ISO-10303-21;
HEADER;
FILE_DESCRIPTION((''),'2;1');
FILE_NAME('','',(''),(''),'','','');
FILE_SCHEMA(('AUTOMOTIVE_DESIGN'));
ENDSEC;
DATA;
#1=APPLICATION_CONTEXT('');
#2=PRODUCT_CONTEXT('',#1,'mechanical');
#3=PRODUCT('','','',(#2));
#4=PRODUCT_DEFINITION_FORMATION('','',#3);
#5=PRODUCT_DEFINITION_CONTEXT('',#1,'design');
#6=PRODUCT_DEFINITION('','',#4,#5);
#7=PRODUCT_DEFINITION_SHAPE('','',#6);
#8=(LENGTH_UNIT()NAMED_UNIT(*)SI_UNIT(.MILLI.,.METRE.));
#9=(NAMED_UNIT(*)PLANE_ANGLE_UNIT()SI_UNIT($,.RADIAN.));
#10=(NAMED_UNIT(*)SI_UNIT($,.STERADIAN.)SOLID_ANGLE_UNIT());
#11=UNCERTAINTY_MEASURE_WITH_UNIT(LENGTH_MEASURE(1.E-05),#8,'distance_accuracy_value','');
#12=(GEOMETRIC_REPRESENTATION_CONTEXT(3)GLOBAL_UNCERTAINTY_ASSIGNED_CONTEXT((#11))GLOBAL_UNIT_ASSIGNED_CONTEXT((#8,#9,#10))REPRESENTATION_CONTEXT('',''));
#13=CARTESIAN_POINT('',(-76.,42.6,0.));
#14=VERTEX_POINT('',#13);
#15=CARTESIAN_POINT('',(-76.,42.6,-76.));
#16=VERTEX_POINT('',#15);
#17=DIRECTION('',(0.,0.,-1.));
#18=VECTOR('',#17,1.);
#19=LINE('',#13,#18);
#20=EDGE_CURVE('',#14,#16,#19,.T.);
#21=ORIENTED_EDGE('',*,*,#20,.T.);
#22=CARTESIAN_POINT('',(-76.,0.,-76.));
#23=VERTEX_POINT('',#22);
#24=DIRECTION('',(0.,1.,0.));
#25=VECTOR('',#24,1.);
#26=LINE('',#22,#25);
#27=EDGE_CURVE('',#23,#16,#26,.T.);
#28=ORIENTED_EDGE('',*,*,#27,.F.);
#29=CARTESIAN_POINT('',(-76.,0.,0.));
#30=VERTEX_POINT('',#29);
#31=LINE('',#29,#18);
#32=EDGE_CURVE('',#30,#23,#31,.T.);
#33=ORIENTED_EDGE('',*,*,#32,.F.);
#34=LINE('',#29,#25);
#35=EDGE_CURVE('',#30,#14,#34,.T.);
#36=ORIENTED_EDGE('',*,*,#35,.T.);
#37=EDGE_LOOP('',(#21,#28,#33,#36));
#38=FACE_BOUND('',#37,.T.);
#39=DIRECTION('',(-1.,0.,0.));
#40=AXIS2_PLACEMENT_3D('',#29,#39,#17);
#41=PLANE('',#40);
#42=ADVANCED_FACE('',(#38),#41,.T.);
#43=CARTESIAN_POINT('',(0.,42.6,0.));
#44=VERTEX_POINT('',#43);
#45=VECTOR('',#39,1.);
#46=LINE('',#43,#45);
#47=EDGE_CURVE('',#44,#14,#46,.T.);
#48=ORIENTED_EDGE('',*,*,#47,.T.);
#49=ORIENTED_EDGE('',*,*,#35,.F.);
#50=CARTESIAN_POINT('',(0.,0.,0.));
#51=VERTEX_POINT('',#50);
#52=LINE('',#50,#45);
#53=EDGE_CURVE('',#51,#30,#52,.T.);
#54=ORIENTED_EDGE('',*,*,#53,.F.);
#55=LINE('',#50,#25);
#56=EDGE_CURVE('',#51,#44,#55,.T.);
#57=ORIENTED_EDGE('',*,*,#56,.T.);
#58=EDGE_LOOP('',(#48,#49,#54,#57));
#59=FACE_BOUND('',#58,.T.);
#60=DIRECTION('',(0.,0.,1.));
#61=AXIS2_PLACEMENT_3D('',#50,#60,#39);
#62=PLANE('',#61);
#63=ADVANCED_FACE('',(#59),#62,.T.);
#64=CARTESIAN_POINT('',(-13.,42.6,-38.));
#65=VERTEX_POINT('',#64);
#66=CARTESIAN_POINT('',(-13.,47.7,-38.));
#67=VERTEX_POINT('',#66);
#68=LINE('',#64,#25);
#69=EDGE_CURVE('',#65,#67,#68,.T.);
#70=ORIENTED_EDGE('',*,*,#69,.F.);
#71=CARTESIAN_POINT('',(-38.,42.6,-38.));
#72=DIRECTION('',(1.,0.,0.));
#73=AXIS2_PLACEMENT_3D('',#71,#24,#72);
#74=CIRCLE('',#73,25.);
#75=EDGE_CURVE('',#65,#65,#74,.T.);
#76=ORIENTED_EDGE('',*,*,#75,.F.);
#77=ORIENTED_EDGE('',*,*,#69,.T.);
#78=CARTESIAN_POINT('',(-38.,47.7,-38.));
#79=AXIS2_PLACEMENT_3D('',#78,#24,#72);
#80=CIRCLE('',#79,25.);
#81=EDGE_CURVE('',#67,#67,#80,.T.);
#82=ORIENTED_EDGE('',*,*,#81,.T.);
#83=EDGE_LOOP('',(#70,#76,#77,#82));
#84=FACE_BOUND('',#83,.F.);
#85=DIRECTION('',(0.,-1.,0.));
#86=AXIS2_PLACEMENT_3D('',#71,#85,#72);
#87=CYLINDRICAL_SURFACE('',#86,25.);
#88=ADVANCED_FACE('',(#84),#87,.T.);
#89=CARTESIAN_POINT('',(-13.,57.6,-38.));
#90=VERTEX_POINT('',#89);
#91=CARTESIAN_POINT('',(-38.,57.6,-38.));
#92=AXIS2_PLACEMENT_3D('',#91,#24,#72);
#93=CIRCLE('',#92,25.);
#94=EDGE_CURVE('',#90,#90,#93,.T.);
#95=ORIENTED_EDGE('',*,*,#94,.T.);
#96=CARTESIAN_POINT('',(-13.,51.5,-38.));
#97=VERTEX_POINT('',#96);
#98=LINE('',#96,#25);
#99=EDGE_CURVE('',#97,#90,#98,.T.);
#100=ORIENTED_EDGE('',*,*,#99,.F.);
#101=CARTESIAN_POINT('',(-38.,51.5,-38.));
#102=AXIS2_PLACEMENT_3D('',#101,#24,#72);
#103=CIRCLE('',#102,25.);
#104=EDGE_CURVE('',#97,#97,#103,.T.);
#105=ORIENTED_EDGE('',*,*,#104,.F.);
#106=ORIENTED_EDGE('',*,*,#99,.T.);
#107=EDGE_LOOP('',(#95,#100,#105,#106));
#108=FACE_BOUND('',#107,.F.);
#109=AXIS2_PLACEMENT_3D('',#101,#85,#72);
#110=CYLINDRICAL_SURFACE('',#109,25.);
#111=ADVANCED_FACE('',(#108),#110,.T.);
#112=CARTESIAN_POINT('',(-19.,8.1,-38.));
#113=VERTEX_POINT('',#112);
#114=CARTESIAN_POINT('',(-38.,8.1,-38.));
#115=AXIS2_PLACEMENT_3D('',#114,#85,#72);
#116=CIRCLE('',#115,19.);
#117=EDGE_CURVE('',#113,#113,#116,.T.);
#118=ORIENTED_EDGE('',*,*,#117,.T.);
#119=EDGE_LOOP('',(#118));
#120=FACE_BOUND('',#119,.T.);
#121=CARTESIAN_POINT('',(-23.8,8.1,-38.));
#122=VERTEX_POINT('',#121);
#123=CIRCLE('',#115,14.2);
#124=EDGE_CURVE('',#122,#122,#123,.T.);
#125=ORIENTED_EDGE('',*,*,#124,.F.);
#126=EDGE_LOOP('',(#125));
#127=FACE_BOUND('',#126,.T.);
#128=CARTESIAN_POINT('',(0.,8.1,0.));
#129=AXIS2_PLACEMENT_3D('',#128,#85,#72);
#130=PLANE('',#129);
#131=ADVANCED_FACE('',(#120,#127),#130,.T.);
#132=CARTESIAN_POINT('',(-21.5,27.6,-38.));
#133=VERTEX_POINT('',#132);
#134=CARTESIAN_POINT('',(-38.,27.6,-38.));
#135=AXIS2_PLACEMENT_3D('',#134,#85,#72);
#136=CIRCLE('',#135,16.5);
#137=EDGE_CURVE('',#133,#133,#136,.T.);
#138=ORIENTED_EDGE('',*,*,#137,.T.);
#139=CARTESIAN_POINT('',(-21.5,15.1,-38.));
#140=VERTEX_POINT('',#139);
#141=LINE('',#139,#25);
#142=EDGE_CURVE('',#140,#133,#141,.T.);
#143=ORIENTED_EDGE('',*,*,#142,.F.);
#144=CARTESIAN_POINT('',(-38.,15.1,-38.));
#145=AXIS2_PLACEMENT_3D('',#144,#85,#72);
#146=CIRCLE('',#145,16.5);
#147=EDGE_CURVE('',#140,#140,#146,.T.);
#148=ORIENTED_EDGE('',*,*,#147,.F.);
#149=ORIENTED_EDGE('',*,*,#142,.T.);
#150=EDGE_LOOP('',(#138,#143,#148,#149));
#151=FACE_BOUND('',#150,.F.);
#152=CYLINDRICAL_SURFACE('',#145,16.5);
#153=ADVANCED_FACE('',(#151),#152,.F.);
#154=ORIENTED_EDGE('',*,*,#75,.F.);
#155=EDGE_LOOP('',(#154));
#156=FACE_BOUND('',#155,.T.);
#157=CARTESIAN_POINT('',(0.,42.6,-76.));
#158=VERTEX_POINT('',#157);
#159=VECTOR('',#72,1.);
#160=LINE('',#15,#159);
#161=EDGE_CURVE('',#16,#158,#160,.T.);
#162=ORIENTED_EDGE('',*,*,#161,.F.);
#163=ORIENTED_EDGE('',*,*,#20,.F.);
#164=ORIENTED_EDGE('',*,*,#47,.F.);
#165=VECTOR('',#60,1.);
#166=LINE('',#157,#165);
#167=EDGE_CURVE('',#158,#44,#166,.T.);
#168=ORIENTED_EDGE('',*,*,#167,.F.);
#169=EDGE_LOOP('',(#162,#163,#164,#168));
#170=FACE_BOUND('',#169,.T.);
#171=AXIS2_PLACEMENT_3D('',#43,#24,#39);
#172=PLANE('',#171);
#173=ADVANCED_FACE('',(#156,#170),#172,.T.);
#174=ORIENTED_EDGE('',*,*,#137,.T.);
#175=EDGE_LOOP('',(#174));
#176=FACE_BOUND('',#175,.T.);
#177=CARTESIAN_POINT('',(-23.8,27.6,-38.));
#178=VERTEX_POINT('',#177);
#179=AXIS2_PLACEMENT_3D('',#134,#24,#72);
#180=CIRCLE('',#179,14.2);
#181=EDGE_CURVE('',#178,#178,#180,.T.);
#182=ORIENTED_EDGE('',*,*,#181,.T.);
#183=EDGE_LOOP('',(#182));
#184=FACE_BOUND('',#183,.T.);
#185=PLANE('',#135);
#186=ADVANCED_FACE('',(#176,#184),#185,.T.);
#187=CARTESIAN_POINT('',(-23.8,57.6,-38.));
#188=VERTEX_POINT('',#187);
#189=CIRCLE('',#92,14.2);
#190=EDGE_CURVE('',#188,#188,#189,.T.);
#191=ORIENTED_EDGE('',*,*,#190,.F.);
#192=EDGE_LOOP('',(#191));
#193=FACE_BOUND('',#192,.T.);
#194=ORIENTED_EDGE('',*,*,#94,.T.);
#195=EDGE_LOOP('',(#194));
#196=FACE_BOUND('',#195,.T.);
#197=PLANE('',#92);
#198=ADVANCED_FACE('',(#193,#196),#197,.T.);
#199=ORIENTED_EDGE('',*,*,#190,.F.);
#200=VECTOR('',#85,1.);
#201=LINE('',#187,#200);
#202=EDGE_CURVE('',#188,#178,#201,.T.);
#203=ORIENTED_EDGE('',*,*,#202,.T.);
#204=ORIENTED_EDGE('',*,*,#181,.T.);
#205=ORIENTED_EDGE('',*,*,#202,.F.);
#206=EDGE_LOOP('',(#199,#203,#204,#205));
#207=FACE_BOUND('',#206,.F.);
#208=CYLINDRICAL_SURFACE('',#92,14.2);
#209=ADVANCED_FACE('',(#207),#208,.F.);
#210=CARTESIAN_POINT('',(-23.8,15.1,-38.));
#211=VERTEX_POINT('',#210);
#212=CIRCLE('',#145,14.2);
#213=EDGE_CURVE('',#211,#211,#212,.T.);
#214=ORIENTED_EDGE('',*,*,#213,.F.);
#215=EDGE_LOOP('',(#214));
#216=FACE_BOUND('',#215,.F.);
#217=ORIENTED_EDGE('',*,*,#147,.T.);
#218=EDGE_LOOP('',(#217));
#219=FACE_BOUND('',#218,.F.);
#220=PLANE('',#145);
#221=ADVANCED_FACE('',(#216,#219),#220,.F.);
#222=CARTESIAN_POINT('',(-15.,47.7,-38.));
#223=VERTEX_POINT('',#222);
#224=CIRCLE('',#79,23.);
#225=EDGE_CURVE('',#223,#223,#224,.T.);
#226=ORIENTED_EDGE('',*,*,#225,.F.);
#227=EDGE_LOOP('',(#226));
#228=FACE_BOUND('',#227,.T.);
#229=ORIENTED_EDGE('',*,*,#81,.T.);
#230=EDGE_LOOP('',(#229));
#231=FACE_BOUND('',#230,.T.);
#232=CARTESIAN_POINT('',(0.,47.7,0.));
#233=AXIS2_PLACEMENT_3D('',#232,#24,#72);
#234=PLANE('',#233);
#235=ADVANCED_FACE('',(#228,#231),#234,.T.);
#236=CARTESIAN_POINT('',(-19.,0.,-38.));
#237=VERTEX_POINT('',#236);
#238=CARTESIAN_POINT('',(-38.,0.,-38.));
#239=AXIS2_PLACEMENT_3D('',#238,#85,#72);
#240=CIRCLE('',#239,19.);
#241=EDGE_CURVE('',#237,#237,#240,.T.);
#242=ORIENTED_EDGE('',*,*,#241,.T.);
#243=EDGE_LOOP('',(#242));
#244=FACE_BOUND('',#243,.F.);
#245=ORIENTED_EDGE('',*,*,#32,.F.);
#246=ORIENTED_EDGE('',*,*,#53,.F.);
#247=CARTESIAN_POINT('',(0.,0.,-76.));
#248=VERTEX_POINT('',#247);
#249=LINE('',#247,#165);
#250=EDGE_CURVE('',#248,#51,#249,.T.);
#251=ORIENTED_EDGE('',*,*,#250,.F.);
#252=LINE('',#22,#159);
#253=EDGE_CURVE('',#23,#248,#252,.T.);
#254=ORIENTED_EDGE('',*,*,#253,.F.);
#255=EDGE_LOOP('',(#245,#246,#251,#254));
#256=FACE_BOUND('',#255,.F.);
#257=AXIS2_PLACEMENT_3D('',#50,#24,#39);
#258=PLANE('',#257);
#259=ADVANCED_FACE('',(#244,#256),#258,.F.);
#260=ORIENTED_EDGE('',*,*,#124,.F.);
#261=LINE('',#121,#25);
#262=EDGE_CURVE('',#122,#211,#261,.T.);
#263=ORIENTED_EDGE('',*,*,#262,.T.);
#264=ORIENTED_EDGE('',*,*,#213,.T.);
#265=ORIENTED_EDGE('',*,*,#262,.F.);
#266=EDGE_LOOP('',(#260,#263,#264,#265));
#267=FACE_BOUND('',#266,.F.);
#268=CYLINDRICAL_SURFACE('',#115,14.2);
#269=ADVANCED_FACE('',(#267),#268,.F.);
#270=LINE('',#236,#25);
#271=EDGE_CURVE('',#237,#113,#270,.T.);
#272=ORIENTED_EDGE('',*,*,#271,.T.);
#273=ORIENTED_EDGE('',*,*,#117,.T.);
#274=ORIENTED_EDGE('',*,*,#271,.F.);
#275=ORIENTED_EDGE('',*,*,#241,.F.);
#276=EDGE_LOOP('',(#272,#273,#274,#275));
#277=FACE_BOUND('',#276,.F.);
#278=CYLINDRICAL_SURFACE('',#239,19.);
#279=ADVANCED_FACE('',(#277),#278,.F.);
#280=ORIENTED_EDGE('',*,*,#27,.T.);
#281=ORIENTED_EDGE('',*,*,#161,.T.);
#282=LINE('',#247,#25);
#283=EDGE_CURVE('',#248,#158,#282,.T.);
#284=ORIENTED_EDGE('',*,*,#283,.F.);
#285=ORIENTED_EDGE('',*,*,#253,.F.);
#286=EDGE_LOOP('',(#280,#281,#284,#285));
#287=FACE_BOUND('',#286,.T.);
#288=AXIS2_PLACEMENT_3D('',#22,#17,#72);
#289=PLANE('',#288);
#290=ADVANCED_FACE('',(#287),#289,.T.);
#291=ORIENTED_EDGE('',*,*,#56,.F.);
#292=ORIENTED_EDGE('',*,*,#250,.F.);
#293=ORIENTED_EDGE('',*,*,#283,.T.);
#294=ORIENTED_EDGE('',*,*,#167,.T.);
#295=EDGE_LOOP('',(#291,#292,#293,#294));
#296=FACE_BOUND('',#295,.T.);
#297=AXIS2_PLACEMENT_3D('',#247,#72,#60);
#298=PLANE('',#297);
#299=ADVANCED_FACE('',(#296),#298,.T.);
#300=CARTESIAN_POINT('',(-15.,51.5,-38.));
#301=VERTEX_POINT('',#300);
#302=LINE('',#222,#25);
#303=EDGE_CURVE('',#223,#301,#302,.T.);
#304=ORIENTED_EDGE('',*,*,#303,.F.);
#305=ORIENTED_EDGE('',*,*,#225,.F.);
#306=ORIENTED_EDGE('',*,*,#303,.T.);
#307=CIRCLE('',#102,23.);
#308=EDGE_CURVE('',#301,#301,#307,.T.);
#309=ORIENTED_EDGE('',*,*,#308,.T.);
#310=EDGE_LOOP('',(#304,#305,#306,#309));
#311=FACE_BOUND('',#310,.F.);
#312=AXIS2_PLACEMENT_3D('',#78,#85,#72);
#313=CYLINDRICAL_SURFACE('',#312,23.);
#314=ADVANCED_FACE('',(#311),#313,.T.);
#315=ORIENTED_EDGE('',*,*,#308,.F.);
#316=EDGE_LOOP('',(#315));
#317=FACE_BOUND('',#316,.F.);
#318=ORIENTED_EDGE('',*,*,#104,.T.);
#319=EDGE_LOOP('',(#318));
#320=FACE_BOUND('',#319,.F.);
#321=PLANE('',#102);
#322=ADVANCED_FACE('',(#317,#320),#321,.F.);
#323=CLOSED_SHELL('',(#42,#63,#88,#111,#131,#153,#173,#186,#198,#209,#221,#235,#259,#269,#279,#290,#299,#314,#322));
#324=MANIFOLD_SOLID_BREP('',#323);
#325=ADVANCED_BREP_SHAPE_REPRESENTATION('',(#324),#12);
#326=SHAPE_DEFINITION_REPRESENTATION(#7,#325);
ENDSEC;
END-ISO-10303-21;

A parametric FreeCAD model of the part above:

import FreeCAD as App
import Part
import Sketcher
from FreeCAD import Vector


def add_polygon(sketch, points):
    """Adds a closed chain of lines whose ends are joined by coincident constraints."""
    first, n = sketch.GeometryCount, len(points)
    for a, b in zip(points, points[1:] + points[:1]):
        sketch.addGeometry(Part.LineSegment(App.Vector(*a, 0), App.Vector(*b, 0)), False)
    for i in range(n):
        sketch.addConstraint(Sketcher.Constraint("Coincident", first + i, 2, first + (i + 1) % n, 1))

doc = App.newDocument("Part")
body = doc.addObject("PartDesign::Body", "Body")

# Sketch on XZ plane
sketch1 = body.newObject("Sketcher::SketchObject", "Sketch")
sketch1.AttachmentSupport = (doc.getObject("XZ_Plane"), [""])
sketch1.MapMode = "FlatFace"
add_polygon(sketch1, [(-76, 0), (0, 0), (0, -76), (-76, -76)])  # lines 0-3
sketch1.addConstraint(Sketcher.Constraint("Horizontal", 0))
sketch1.addConstraint(Sketcher.Constraint("Vertical", 1))
sketch1.addConstraint(Sketcher.Constraint("Horizontal", 2))
sketch1.addConstraint(Sketcher.Constraint("Vertical", 3))
sketch1.addConstraint(Sketcher.Constraint("Coincident", 0, 2, -1, 1))
sketch1.addConstraint(Sketcher.Constraint("Equal", 2, 1))
sketch1.addConstraint(Sketcher.Constraint("DistanceX", 0, 1, 0, 2, 76.0))
pad1 = body.newObject("PartDesign::Pad", "Pad")
pad1.Profile = sketch1
pad1.Length = 42.6
pad1.Reversed = True

# Sketch on XZ plane
sketch2 = body.newObject("Sketcher::SketchObject", "Sketch001")
sketch2.AttachmentSupport = (doc.getObject("XZ_Plane"), [""])
sketch2.MapMode = "FlatFace"
sketch2.AttachmentOffset = App.Placement(Vector(0, 0, -42.6), App.Rotation())
sketch2.addGeometry(Part.Circle(Vector(-38, -38, 0), Vector(0, 0, 1), 25), False)
sketch2.addConstraint(Sketcher.Constraint("Diameter", 0, 50.0))
sketch2.addConstraint(Sketcher.Constraint("DistanceX", 0, 3, -1, 1, 38.0))
sketch2.addConstraint(Sketcher.Constraint("DistanceY", 0, 3, -1, 1, 38.0))
pad2 = body.newObject("PartDesign::Pad", "Pad001")
pad2.Profile = sketch2
pad2.Length = 5.1
pad2.Reversed = True

# Sketch on XZ plane
sketch3 = body.newObject("Sketcher::SketchObject", "Sketch002")
sketch3.AttachmentSupport = (doc.getObject("XZ_Plane"), [""])
sketch3.MapMode = "FlatFace"
sketch3.AttachmentOffset = App.Placement(Vector(0, 0, -47.7), App.Rotation())
sketch3.addGeometry(Part.Circle(Vector(-38, -38, 0), Vector(0, 0, 1), 23), False)
sketch3.addConstraint(Sketcher.Constraint("Diameter", 0, 46.0))
sketch3.addConstraint(Sketcher.Constraint("DistanceX", 0, 3, -1, 1, 38.0))
sketch3.addConstraint(Sketcher.Constraint("DistanceY", 0, 3, -1, 1, 38.0))
pad3 = body.newObject("PartDesign::Pad", "Pad002")
pad3.Profile = sketch3
pad3.Length = 3.8
pad3.Reversed = True

# Sketch on XZ plane
sketch4 = body.newObject("Sketcher::SketchObject", "Sketch003")
sketch4.AttachmentSupport = (doc.getObject("XZ_Plane"), [""])
sketch4.MapMode = "FlatFace"
sketch4.AttachmentOffset = App.Placement(Vector(0, 0, -51.5), App.Rotation())
sketch4.addGeometry(Part.Circle(Vector(-38, -38, 0), Vector(0, 0, 1), 25), False)
sketch4.addConstraint(Sketcher.Constraint("Diameter", 0, 50.0))
sketch4.addConstraint(Sketcher.Constraint("DistanceX", 0, 3, -1, 1, 38.0))
sketch4.addConstraint(Sketcher.Constraint("DistanceY", 0, 3, -1, 1, 38.0))
pad4 = body.newObject("PartDesign::Pad", "Pad003")
pad4.Profile = sketch4
pad4.Length = 6.1
pad4.Reversed = True

# Sketch on XZ plane
sketch5 = body.newObject("Sketcher::SketchObject", "Sketch004")
sketch5.AttachmentSupport = (doc.getObject("XZ_Plane"), [""])
sketch5.MapMode = "FlatFace"
sketch5.addGeometry(Part.Circle(Vector(-38, -38, 0), Vector(0, 0, 1), 19), False)
sketch5.addConstraint(Sketcher.Constraint("Diameter", 0, 38.0))
sketch5.addConstraint(Sketcher.Constraint("DistanceX", 0, 3, -1, 1, 38.0))
sketch5.addConstraint(Sketcher.Constraint("DistanceY", 0, 3, -1, 1, 38.0))
pocket1 = body.newObject("PartDesign::Pocket", "Pocket")
pocket1.Profile = sketch5
pocket1.Length = 8.1

# Sketch on XZ plane
sketch6 = body.newObject("Sketcher::SketchObject", "Sketch005")
sketch6.AttachmentSupport = (doc.getObject("XZ_Plane"), [""])
sketch6.MapMode = "FlatFace"
sketch6.AttachmentOffset = App.Placement(Vector(0, 0, -8.1), App.Rotation())
sketch6.addGeometry(Part.Circle(Vector(-38, -38, 0), Vector(0, 0, 1), 14), False)
sketch6.addConstraint(Sketcher.Constraint("Diameter", 0, 28.4))
sketch6.addConstraint(Sketcher.Constraint("DistanceX", 0, 3, -1, 1, 38.0))
sketch6.addConstraint(Sketcher.Constraint("DistanceY", 0, 3, -1, 1, 38.0))
pocket2 = body.newObject("PartDesign::Pocket", "Pocket001")
pocket2.Profile = sketch6
pocket2.Length = 7

# Sketch on XZ plane
sketch7 = body.newObject("Sketcher::SketchObject", "Sketch006")
sketch7.AttachmentSupport = (doc.getObject("XZ_Plane"), [""])
sketch7.MapMode = "FlatFace"
sketch7.AttachmentOffset = App.Placement(Vector(0, 0, -15.1), App.Rotation())
sketch7.addGeometry(Part.Circle(Vector(-38, -38, 0), Vector(0, 0, 1), 16), False)
sketch7.addConstraint(Sketcher.Constraint("Diameter", 0, 33.0))
sketch7.addConstraint(Sketcher.Constraint("DistanceX", 0, 3, -1, 1, 38.0))
sketch7.addConstraint(Sketcher.Constraint("DistanceY", 0, 3, -1, 1, 38.0))
pocket3 = body.newObject("PartDesign::Pocket", "Pocket002")
pocket3.Profile = sketch7
pocket3.Length = 12.5

# Sketch on XZ plane
sketch8 = body.newObject("Sketcher::SketchObject", "Sketch007")
sketch8.AttachmentSupport = (doc.getObject("XZ_Plane"), [""])
sketch8.MapMode = "FlatFace"
sketch8.AttachmentOffset = App.Placement(Vector(0, 0, -57.6), App.Rotation())
sketch8.addGeometry(Part.Circle(Vector(-38, -38, 0), Vector(0, 0, 1), 14), False)
sketch8.addConstraint(Sketcher.Constraint("Diameter", 0, 28.4))
sketch8.addConstraint(Sketcher.Constraint("DistanceX", 0, 3, -1, 1, 38.0))
sketch8.addConstraint(Sketcher.Constraint("DistanceY", 0, 3, -1, 1, 38.0))
pocket4 = body.newObject("PartDesign::Pocket", "Pocket003")
pocket4.Profile = sketch8
pocket4.Length = 30
pocket4.Reversed = True

doc.recompute()
